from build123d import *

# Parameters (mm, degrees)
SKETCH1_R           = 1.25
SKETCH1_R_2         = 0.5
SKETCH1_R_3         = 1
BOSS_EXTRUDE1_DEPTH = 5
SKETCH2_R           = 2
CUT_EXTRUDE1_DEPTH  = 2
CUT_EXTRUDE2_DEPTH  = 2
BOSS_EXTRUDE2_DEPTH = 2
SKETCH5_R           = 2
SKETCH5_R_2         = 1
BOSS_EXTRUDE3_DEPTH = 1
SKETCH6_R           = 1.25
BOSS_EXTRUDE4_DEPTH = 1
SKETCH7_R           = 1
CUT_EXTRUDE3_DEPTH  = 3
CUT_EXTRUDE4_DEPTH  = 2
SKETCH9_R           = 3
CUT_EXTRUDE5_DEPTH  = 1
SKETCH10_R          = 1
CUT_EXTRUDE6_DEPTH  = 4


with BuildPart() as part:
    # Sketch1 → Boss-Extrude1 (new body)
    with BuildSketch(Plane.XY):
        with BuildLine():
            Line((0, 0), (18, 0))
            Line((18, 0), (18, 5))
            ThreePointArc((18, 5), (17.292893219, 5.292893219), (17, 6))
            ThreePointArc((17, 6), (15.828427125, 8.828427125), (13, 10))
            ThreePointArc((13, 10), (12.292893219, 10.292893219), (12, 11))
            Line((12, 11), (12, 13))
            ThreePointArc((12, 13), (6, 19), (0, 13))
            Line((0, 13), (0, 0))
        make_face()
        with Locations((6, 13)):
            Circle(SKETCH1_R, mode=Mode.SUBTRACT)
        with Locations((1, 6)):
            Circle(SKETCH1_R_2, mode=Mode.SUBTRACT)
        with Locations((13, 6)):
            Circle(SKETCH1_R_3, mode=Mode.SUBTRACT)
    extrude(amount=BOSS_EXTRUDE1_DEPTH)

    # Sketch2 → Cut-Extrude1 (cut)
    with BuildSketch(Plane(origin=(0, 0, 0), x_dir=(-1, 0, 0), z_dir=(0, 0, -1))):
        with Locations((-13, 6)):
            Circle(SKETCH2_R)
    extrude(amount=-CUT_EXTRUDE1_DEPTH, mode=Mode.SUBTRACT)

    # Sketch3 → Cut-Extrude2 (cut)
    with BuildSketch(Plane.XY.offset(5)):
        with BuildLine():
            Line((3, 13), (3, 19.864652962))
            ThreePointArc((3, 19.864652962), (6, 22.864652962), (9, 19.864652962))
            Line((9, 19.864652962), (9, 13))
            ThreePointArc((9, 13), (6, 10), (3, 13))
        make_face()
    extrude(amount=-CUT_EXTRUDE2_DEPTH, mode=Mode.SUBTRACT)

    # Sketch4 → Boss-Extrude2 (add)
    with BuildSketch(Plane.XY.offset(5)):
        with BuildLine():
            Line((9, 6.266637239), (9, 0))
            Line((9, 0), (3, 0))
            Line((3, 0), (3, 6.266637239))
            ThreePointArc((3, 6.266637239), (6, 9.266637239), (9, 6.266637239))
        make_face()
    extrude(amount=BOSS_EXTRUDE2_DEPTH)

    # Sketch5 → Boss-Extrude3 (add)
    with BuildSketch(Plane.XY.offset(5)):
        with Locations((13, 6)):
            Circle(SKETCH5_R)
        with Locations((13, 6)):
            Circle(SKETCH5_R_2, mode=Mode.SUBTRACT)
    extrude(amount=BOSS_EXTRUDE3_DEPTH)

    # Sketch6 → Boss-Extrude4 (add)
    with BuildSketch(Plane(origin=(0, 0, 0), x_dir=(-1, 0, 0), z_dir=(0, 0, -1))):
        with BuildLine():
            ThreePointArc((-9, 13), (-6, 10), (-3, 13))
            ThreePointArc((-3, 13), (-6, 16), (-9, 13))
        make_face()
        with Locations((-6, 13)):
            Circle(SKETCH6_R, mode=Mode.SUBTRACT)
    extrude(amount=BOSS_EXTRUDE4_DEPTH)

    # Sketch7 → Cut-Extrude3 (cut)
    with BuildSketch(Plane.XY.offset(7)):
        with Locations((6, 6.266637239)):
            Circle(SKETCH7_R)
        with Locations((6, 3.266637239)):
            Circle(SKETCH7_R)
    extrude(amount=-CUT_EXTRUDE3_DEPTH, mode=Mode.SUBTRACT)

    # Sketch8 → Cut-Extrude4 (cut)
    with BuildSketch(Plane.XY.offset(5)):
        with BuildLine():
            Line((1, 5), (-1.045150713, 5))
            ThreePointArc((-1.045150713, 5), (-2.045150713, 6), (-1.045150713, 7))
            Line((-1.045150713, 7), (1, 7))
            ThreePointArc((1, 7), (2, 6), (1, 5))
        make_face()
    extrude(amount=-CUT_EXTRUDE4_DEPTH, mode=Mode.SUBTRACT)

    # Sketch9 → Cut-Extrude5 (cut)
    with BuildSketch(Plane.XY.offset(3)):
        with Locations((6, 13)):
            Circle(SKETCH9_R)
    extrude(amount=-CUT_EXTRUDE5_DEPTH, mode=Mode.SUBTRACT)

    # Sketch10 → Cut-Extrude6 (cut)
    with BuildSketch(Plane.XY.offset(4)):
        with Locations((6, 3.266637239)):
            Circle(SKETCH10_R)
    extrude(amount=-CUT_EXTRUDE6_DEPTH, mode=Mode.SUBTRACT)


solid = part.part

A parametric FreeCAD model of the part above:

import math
import FreeCAD as App
import Part
import Sketcher

V = App.Vector
Q = App.Units.Quantity

doc = App.newDocument("Part")
body = doc.addObject("PartDesign::Body", "Body")

# Sketch on XY plane
sketch1 = body.newObject("Sketcher::SketchObject", "Sketch")
sketch1.AttachmentSupport = (doc.getObject("XY_Plane"), [""])
sketch1.MapMode = "FlatFace"
sketch1.addGeometry([
    Part.LineSegment(V(0, 0, 0), V(18, 0, 0)),  # 0
    Part.LineSegment(V(18, 0, 0), V(18, 5, 0)),  # 1
    Part.ArcOfCircle(Part.Circle(V(18, 6, 0), V(0, 0, 1), 1), math.radians(-180), math.radians(-90)),  # 2
    Part.ArcOfCircle(Part.Circle(V(13, 6, 0), V(0, 0, 1), 4), math.radians(0), math.radians(90)),  # 3
    Part.ArcOfCircle(Part.Circle(V(13, 11, 0), V(0, 0, 1), 1), math.radians(-180), math.radians(-90)),  # 4
    Part.LineSegment(V(12, 11, 0), V(12, 13, 0)),  # 5
    Part.ArcOfCircle(Part.Circle(V(6, 13, 0), V(0, 0, 1), 6), math.radians(0), math.radians(180)),  # 6
    Part.LineSegment(V(0, 13, 0), V(0, 0, 0)),  # 7
    Part.Circle(V(1, 6, 0), V(0, 0, 1), 0.5),  # 8
    Part.Circle(V(13, 6, 0), V(0, 0, 1), 1),  # 9
    Part.Circle(V(6, 13, 0), V(0, 0, 1), 1.2),  # 10
], False)
sketch1.addConstraint([
    Sketcher.Constraint("Coincident", 0, 2, 1, 1),
    Sketcher.Constraint("Coincident", 1, 2, 2, 2),
    Sketcher.Constraint("Tangent", 2, 1, 3, 1),
    Sketcher.Constraint("Tangent", 3, 2, 4, 2),
    Sketcher.Constraint("Tangent", 4, 1, 5, 1),
    Sketcher.Constraint("Tangent", 5, 2, 6, 1),
    Sketcher.Constraint("Tangent", 6, 2, 7, 1),
    Sketcher.Constraint("Coincident", 7, 2, 0, 1),
    Sketcher.Constraint("Horizontal", 0),
    Sketcher.Constraint("Vertical", 1),
    Sketcher.Constraint("Vertical", 5),
    Sketcher.Constraint("Vertical", 7),
    Sketcher.Constraint("Coincident", 7, 2, -1, 1),
    Sketcher.Constraint("Coincident", 9, 3, 3, 3),
    Sketcher.Constraint("Coincident", 10, 3, 6, 3),
    Sketcher.Constraint("Equal", 2, 4),
    Sketcher.Constraint("Equal", 4, 9),
    Sketcher.Constraint("Horizontal", 2, 3, 3, 3),
    Sketcher.Constraint("Horizontal", 3, 3, 8, 3),
    Sketcher.Constraint("Vertical", 3, 3, 4, 3),
    Sketcher.Constraint("Vertical", 2, 3, 0, 2),
    Sketcher.Constraint("Diameter", 8, Q("1 mm")),
    Sketcher.Constraint("Diameter", 9, Q("2 mm")),
    Sketcher.Constraint("Radius", 3, Q("4 mm")),
    Sketcher.Constraint("Radius", 6, Q("6 mm")),
    Sketcher.Constraint("Diameter", 10, Q("2.5 mm")),
    Sketcher.Constraint("DistanceY", 1, 1, 1, 2, Q("5 mm")),
    Sketcher.Constraint("DistanceY", 5, 1, 5, 2, Q("2 mm")),
    Sketcher.Constraint("DistanceX", -1, 1, 8, 3, Q("1 mm")),
])
pad1 = body.newObject("PartDesign::Pad", "Pad")
pad1.Profile = sketch1
pad1.Length = 5

# Sketch on XY plane
sketch2 = body.newObject("Sketcher::SketchObject", "Sketch001")
sketch2.AttachmentSupport = (doc.getObject("XY_Plane"), [""])
sketch2.MapMode = "FlatFace"
sketch2.addGeometry(Part.Circle(V(13, 6, 0), V(0, 0, 1), 2), False)
sketch2.addConstraint([
    Sketcher.Constraint("Diameter", 0, Q("4 mm")),
    Sketcher.Constraint("DistanceX", -1, 1, 0, 3, Q("13 mm")),
    Sketcher.Constraint("DistanceY", -1, 1, 0, 3, Q("6 mm")),
])
pocket1 = body.newObject("PartDesign::Pocket", "Pocket")
pocket1.Profile = sketch2
pocket1.Length = 2
pocket1.Reversed = True

# Sketch on XY plane
sketch3 = body.newObject("Sketcher::SketchObject", "Sketch002")
sketch3.AttachmentSupport = (doc.getObject("XY_Plane"), [""])
sketch3.MapMode = "FlatFace"
sketch3.AttachmentOffset = App.Placement(V(0, 0, 5), App.Rotation())
sketch3.addGeometry([
    Part.LineSegment(V(3, 19.9, 0), V(3, 13, 0)),
    Part.ArcOfCircle(Part.Circle(V(6, 13, 0), V(0, 0, 1), 3), math.radians(180), math.radians(360)),
    Part.LineSegment(V(9, 13, 0), V(9, 19.9, 0)),
    Part.ArcOfCircle(Part.Circle(V(6, 19.9, 0), V(0, 0, 1), 3), math.radians(0), math.radians(180)),
], False)
sketch3.addConstraint([
    Sketcher.Constraint("Tangent", 0, 2, 1, 1),
    Sketcher.Constraint("Tangent", 1, 2, 2, 1),
    Sketcher.Constraint("Tangent", 2, 2, 3, 1),
    Sketcher.Constraint("Tangent", 3, 2, 0, 1),
    Sketcher.Constraint("Vertical", 0),
    Sketcher.Constraint("Vertical", 2),
    Sketcher.Constraint("Radius", 1, Q("3 mm")),
    Sketcher.Constraint("DistanceX", -1, 1, 1, 3, Q("6 mm")),
    Sketcher.Constraint("DistanceY", -1, 1, 1, 3, Q("13 mm")),
    Sketcher.Constraint("DistanceY", 0, 2, 0, 1, Q("6.864653 mm")),
])
pocket2 = body.newObject("PartDesign::Pocket", "Pocket001")
pocket2.Profile = sketch3
pocket2.Length = 2

# Sketch on XY plane
sketch4 = body.newObject("Sketcher::SketchObject", "Sketch003")
sketch4.AttachmentSupport = (doc.getObject("XY_Plane"), [""])
sketch4.MapMode = "FlatFace"
sketch4.AttachmentOffset = App.Placement(V(0, 0, 5), App.Rotation())
sketch4.addGeometry([
    Part.LineSegment(V(9, 0, 0), V(9, 6.3, 0)),
    Part.ArcOfCircle(Part.Circle(V(6, 6.3, 0), V(0, 0, 1), 3), math.radians(0), math.radians(180)),
    Part.LineSegment(V(3, 6.3, 0), V(3, 0, 0)),
    Part.LineSegment(V(3, 0, 0), V(9, 0, 0)),
], False)
sketch4.addConstraint([
    Sketcher.Constraint("Tangent", 0, 2, 1, 1),
    Sketcher.Constraint("Tangent", 1, 2, 2, 1),
    Sketcher.Constraint("Coincident", 2, 2, 3, 1),
    Sketcher.Constraint("Coincident", 3, 2, 0, 1),
    Sketcher.Constraint("Vertical", 0),
    Sketcher.Constraint("Vertical", 2),
    Sketcher.Constraint("Horizontal", 3),
    Sketcher.Constraint("PointOnObject", 2, 2, -1),
    Sketcher.Constraint("Radius", 1, Q("3 mm")),
    Sketcher.Constraint("DistanceX", -1, 1, 1, 3, Q("6 mm")),
    Sketcher.Constraint("DistanceY", 0, 1, 0, 2, Q("6.266637 mm")),
])
pad2 = body.newObject("PartDesign::Pad", "Pad001")
pad2.Profile = sketch4
pad2.Length = 2

# Sketch on XY plane
sketch5 = body.newObject("Sketcher::SketchObject", "Sketch004")
sketch5.AttachmentSupport = (doc.getObject("XY_Plane"), [""])
sketch5.MapMode = "FlatFace"
sketch5.AttachmentOffset = App.Placement(V(0, 0, 5), App.Rotation())
sketch5.addGeometry([
    Part.Circle(V(13, 6, 0), V(0, 0, 1), 2),
    Part.Circle(V(13, 6, 0), V(0, 0, 1), 1),
], False)
sketch5.addConstraint([
    Sketcher.Constraint("Coincident", 1, 3, 0, 3),
    Sketcher.Constraint("Diameter", 0, Q("4 mm")),
    Sketcher.Constraint("Diameter", 1, Q("2 mm")),
    Sketcher.Constraint("DistanceX", -1, 1, 0, 3, Q("13 mm")),
    Sketcher.Constraint("DistanceY", -1, 1, 0, 3, Q("6 mm")),
])
pad3 = body.newObject("PartDesign::Pad", "Pad002")
pad3.Profile = sketch5
pad3.Length = 1

# Sketch on XY plane
sketch6 = body.newObject("Sketcher::SketchObject", "Sketch005")
sketch6.AttachmentSupport = (doc.getObject("XY_Plane"), [""])
sketch6.MapMode = "FlatFace"
sketch6.addGeometry([
    Part.Circle(V(6, 13, 0), V(0, 0, 1), 3),
    Part.Circle(V(6, 13, 0), V(0, 0, 1), 1.2),
], False)
sketch6.addConstraint([
    Sketcher.Constraint("Coincident", 1, 3, 0, 3),
    Sketcher.Constraint("Diameter", 0, Q("6 mm")),
    Sketcher.Constraint("Diameter", 1, Q("2.5 mm")),
    Sketcher.Constraint("DistanceX", -1, 1, 0, 3, Q("6 mm")),
    Sketcher.Constraint("DistanceY", -1, 1, 0, 3, Q("13 mm")),
])
pad4 = body.newObject("PartDesign::Pad", "Pad003")
pad4.Profile = sketch6
pad4.Length = 1
pad4.Reversed = True

# Sketch on XY plane
sketch7 = body.newObject("Sketcher::SketchObject", "Sketch006")
sketch7.AttachmentSupport = (doc.getObject("XY_Plane"), [""])
sketch7.MapMode = "FlatFace"
sketch7.AttachmentOffset = App.Placement(V(0, 0, 7), App.Rotation())
sketch7.addGeometry([
    Part.Circle(V(6, 6.3, 0), V(0, 0, 1), 1),
    Part.Circle(V(6, 3.3, 0), V(0, 0, 1), 1),
], False)
sketch7.addConstraint([
    Sketcher.Constraint("Equal", 0, 1),
    Sketcher.Constraint("Vertical", 0, 3, 1, 3),
    Sketcher.Constraint("Diameter", 0, Q("2 mm")),
    Sketcher.Constraint("DistanceX", -1, 1, 0, 3, Q("6 mm")),
    Sketcher.Constraint("DistanceY", 1, 3, 0, 3, Q("3 mm")),
    Sketcher.Constraint("DistanceY", -1, 1, 0, 3, Q("6.266637 mm")),
])
pocket3 = body.newObject("PartDesign::Pocket", "Pocket002")
pocket3.Profile = sketch7
pocket3.Length = 3

# Sketch on XY plane
sketch8 = body.newObject("Sketcher::SketchObject", "Sketch007")
sketch8.AttachmentSupport = (doc.getObject("XY_Plane"), [""])
sketch8.MapMode = "FlatFace"
sketch8.AttachmentOffset = App.Placement(V(0, 0, 5), App.Rotation())
sketch8.addGeometry([
    Part.LineSegment(V(-1, 5, 0), V(1, 5, 0)),
    Part.ArcOfCircle(Part.Circle(V(1, 6, 0), V(0, 0, 1), 1), math.radians(-90), math.radians(90)),
    Part.LineSegment(V(1, 7, 0), V(-1, 7, 0)),
    Part.ArcOfCircle(Part.Circle(V(-1, 6, 0), V(0, 0, 1), 1), math.radians(90), math.radians(270)),
], False)
sketch8.addConstraint([
    Sketcher.Constraint("Tangent", 0, 2, 1, 1),
    Sketcher.Constraint("Tangent", 1, 2, 2, 1),
    Sketcher.Constraint("Tangent", 2, 2, 3, 1),
    Sketcher.Constraint("Tangent", 3, 2, 0, 1),
    Sketcher.Constraint("Horizontal", 0),
    Sketcher.Constraint("Horizontal", 2),
    Sketcher.Constraint("Radius", 1, Q("1 mm")),
    Sketcher.Constraint("DistanceX", -1, 1, 1, 3, Q("1 mm")),
    Sketcher.Constraint("DistanceY", -1, 1, 1, 3, Q("6 mm")),
    Sketcher.Constraint("DistanceX", 0, 1, 0, 2, Q("2.045151 mm")),
])
pocket4 = body.newObject("PartDesign::Pocket", "Pocket003")
pocket4.Profile = sketch8
pocket4.Length = 2

# Sketch on XY plane
sketch9 = body.newObject("Sketcher::SketchObject", "Sketch008")
sketch9.AttachmentSupport = (doc.getObject("XY_Plane"), [""])
sketch9.MapMode = "FlatFace"
sketch9.AttachmentOffset = App.Placement(V(0, 0, 3), App.Rotation())
sketch9.addGeometry(Part.Circle(V(6, 13, 0), V(0, 0, 1), 3), False)
sketch9.addConstraint([
    Sketcher.Constraint("Diameter", 0, Q("6 mm")),
    Sketcher.Constraint("DistanceX", -1, 1, 0, 3, Q("6 mm")),
    Sketcher.Constraint("DistanceY", -1, 1, 0, 3, Q("13 mm")),
])
pocket5 = body.newObject("PartDesign::Pocket", "Pocket004")
pocket5.Profile = sketch9
pocket5.Length = 1

# Sketch on XY plane
sketch10 = body.newObject("Sketcher::SketchObject", "Sketch009")
sketch10.AttachmentSupport = (doc.getObject("XY_Plane"), [""])
sketch10.MapMode = "FlatFace"
sketch10.AttachmentOffset = App.Placement(V(0, 0, 4), App.Rotation())
sketch10.addGeometry(Part.Circle(V(6, 3.3, 0), V(0, 0, 1), 1), False)
sketch10.addConstraint([
    Sketcher.Constraint("Diameter", 0, Q("2 mm")),
    Sketcher.Constraint("DistanceX", -1, 1, 0, 3, Q("6 mm")),
    Sketcher.Constraint("DistanceY", -1, 1, 0, 3, Q("3.266637 mm")),
])
pocket6 = body.newObject("PartDesign::Pocket", "Pocket005")
pocket6.Profile = sketch10
pocket6.Length = 4

doc.recompute()
